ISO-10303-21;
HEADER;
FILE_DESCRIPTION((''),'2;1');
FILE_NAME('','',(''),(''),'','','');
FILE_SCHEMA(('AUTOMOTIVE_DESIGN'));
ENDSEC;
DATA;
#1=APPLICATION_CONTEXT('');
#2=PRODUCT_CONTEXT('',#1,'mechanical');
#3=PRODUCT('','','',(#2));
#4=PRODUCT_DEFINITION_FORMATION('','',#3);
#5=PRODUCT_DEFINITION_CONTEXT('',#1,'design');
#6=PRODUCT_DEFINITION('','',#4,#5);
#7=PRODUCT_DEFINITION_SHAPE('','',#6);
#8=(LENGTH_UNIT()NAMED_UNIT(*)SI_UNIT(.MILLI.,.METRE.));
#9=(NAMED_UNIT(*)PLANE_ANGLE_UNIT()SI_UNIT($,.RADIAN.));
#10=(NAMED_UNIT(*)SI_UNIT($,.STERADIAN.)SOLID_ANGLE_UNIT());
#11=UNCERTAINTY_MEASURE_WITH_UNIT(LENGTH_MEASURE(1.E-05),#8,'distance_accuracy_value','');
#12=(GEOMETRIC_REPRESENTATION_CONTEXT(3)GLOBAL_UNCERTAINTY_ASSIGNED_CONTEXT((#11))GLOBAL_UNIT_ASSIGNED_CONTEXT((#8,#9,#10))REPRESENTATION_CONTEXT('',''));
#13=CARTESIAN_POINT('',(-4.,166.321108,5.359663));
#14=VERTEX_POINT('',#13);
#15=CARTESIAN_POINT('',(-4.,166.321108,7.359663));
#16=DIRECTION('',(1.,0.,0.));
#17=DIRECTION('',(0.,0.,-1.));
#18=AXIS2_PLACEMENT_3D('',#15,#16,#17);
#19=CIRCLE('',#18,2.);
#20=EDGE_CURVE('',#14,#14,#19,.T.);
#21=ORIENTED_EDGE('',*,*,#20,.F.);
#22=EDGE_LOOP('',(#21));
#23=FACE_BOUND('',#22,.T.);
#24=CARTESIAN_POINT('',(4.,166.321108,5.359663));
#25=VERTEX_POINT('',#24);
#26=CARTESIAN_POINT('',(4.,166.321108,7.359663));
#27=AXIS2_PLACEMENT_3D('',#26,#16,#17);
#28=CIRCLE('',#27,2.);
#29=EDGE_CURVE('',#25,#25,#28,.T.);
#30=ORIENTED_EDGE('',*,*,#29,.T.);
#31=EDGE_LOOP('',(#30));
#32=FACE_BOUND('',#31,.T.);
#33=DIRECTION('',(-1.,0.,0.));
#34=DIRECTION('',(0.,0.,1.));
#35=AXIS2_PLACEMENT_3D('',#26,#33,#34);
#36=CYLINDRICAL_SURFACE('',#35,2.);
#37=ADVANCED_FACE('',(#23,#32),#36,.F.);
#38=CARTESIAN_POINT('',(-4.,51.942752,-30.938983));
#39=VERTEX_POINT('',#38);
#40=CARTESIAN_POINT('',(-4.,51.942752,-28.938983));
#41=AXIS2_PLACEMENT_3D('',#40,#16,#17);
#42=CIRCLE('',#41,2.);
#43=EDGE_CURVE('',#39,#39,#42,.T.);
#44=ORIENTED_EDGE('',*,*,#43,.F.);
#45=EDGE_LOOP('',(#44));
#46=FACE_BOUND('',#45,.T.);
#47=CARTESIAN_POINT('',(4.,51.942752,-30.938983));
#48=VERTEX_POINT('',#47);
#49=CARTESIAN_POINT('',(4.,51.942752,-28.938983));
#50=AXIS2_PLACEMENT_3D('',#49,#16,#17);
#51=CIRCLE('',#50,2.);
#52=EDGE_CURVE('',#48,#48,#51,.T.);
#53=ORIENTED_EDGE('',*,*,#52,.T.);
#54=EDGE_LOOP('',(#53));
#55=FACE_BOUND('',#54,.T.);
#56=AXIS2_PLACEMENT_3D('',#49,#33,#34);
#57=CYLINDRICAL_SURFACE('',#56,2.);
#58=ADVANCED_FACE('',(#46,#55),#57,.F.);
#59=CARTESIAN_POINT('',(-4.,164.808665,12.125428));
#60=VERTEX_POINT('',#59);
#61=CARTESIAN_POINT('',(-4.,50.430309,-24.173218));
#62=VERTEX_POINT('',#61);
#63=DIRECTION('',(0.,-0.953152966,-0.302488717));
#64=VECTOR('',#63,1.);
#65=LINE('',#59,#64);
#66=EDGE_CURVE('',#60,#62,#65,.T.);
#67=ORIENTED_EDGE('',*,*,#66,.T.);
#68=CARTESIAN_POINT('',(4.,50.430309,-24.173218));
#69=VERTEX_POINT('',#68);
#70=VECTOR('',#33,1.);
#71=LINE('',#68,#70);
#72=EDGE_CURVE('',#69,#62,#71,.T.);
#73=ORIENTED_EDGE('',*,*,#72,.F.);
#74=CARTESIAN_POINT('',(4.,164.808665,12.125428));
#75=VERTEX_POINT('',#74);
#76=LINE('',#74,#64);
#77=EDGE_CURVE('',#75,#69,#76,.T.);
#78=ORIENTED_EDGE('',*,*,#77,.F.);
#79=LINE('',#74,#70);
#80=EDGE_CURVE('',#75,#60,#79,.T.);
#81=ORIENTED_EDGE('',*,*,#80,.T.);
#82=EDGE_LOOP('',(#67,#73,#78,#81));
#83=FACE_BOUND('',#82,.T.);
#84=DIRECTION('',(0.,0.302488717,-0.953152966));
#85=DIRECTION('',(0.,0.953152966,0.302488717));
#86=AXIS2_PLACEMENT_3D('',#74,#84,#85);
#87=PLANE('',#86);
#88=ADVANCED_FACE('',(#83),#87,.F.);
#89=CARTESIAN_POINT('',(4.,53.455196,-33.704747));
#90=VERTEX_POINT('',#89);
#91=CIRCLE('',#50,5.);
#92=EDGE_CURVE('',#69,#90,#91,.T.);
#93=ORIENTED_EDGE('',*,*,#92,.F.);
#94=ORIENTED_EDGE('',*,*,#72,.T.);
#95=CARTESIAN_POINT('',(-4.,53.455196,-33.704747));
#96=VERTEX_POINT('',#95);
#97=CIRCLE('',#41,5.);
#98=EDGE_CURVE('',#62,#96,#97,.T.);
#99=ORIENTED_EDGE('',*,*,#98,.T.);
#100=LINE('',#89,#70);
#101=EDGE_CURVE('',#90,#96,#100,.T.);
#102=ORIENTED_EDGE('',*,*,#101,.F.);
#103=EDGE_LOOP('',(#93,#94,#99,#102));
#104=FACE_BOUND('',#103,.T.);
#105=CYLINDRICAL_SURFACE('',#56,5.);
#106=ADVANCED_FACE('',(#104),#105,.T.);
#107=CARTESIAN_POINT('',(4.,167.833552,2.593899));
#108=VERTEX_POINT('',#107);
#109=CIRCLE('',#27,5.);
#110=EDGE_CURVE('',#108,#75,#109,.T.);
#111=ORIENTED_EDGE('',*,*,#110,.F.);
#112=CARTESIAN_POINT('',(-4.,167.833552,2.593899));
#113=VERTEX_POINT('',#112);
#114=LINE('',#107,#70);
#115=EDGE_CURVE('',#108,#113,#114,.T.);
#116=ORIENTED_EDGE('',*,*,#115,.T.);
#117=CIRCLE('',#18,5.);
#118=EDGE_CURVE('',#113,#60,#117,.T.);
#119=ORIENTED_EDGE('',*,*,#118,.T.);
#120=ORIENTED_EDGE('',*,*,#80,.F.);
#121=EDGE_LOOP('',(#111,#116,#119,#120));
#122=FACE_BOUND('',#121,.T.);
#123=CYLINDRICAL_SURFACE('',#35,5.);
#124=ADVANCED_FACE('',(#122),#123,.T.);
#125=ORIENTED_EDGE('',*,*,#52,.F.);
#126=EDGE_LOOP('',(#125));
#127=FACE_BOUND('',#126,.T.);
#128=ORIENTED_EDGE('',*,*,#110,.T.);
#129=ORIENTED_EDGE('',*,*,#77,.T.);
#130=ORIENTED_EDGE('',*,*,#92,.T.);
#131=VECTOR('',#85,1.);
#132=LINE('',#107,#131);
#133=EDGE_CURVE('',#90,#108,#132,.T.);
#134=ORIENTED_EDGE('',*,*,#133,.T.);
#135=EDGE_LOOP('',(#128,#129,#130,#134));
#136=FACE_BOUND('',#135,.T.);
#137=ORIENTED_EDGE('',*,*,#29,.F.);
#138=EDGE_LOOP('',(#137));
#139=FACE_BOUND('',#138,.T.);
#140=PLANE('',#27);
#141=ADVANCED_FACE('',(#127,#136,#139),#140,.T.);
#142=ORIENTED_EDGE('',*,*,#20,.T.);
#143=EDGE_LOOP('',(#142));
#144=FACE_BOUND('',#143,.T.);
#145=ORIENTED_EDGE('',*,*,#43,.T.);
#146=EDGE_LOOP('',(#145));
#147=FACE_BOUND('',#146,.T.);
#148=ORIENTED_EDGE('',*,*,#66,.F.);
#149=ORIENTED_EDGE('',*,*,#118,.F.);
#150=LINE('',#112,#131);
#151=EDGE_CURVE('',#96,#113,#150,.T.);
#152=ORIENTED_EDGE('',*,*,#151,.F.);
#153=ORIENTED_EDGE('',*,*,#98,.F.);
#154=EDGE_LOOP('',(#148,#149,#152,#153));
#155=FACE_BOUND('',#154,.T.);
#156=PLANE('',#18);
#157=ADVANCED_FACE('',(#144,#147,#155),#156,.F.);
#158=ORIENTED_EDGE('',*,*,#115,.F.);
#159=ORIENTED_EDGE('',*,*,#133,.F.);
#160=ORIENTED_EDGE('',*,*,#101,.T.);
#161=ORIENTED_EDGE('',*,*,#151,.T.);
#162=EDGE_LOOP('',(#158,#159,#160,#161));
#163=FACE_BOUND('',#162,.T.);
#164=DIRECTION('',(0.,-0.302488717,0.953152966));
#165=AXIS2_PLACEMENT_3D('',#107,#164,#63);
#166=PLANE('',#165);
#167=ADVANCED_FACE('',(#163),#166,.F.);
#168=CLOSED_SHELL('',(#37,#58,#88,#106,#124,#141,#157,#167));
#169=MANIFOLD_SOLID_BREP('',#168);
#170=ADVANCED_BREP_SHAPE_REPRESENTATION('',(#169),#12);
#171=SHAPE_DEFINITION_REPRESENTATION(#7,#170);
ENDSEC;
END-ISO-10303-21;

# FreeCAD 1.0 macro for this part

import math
import FreeCAD as App
import Part
import Sketcher

doc = App.newDocument("Part")
body = doc.addObject("PartDesign::Body", "Body")

# Sketch on YZ plane
sketch1 = doc.addObject("Sketcher::SketchObject", "Sketch")
body.addObject(sketch1)
sketch1.AttachmentSupport = (doc.YZ_Plane, [""])
sketch1.MapMode = "FlatFace"
sketch1.addGeometry([
    Part.LineSegment(App.Vector(53.5, -33.7, 0), App.Vector(167.8, 2.6, 0)),  # 0
    Part.ArcOfCircle(Part.Circle(App.Vector(166.3, 7.4, 0), App.Vector(0, 0, 1), 5), math.radians(-72), math.radians(108)),  # 1
    Part.LineSegment(App.Vector(164.8, 12.1, 0), App.Vector(50.4, -24.2, 0)),  # 2
    Part.ArcOfCircle(Part.Circle(App.Vector(51.9, -28.9, 0), App.Vector(0, 0, 1), 5), math.radians(108), math.radians(288)),  # 3
    Part.Circle(App.Vector(51.9, -28.9, 0), App.Vector(0, 0, 1), 2),  # 4
    Part.Circle(App.Vector(166.3, 7.4, 0), App.Vector(0, 0, 1), 2),  # 5
], False)
sketch1.addConstraint([
    Sketcher.Constraint("Tangent", 0, 2, 1, 1),
    Sketcher.Constraint("Tangent", 1, 2, 2, 1),
    Sketcher.Constraint("Tangent", 2, 2, 3, 1),
    Sketcher.Constraint("Tangent", 3, 2, 0, 1),
    Sketcher.Constraint("Coincident", 4, 3, 3, 3),
    Sketcher.Constraint("Coincident", 5, 3, 1, 3),
    Sketcher.Constraint("Equal", 1, 3),
    Sketcher.Constraint("Equal", 4, 5),
    Sketcher.Constraint("Diameter", 4, 4.0),
    Sketcher.Constraint("Radius", 1, 5.0),
    Sketcher.Constraint("Distance", 0, 120.0),
    Sketcher.Constraint("DistanceY", -1, 1, 0, 2, 2.593899),
    Sketcher.Constraint("DistanceX", 3, 3, 0, 2, 115.890799),
    Sketcher.Constraint("DistanceX", -1, 1, 1, 3, 166.321108),
])
pad1 = doc.addObject("PartDesign::Pad", "Pad")
body.addObject(pad1)
pad1.Profile = sketch1
pad1.Length = 8
pad1.Midplane = True

doc.recompute()
